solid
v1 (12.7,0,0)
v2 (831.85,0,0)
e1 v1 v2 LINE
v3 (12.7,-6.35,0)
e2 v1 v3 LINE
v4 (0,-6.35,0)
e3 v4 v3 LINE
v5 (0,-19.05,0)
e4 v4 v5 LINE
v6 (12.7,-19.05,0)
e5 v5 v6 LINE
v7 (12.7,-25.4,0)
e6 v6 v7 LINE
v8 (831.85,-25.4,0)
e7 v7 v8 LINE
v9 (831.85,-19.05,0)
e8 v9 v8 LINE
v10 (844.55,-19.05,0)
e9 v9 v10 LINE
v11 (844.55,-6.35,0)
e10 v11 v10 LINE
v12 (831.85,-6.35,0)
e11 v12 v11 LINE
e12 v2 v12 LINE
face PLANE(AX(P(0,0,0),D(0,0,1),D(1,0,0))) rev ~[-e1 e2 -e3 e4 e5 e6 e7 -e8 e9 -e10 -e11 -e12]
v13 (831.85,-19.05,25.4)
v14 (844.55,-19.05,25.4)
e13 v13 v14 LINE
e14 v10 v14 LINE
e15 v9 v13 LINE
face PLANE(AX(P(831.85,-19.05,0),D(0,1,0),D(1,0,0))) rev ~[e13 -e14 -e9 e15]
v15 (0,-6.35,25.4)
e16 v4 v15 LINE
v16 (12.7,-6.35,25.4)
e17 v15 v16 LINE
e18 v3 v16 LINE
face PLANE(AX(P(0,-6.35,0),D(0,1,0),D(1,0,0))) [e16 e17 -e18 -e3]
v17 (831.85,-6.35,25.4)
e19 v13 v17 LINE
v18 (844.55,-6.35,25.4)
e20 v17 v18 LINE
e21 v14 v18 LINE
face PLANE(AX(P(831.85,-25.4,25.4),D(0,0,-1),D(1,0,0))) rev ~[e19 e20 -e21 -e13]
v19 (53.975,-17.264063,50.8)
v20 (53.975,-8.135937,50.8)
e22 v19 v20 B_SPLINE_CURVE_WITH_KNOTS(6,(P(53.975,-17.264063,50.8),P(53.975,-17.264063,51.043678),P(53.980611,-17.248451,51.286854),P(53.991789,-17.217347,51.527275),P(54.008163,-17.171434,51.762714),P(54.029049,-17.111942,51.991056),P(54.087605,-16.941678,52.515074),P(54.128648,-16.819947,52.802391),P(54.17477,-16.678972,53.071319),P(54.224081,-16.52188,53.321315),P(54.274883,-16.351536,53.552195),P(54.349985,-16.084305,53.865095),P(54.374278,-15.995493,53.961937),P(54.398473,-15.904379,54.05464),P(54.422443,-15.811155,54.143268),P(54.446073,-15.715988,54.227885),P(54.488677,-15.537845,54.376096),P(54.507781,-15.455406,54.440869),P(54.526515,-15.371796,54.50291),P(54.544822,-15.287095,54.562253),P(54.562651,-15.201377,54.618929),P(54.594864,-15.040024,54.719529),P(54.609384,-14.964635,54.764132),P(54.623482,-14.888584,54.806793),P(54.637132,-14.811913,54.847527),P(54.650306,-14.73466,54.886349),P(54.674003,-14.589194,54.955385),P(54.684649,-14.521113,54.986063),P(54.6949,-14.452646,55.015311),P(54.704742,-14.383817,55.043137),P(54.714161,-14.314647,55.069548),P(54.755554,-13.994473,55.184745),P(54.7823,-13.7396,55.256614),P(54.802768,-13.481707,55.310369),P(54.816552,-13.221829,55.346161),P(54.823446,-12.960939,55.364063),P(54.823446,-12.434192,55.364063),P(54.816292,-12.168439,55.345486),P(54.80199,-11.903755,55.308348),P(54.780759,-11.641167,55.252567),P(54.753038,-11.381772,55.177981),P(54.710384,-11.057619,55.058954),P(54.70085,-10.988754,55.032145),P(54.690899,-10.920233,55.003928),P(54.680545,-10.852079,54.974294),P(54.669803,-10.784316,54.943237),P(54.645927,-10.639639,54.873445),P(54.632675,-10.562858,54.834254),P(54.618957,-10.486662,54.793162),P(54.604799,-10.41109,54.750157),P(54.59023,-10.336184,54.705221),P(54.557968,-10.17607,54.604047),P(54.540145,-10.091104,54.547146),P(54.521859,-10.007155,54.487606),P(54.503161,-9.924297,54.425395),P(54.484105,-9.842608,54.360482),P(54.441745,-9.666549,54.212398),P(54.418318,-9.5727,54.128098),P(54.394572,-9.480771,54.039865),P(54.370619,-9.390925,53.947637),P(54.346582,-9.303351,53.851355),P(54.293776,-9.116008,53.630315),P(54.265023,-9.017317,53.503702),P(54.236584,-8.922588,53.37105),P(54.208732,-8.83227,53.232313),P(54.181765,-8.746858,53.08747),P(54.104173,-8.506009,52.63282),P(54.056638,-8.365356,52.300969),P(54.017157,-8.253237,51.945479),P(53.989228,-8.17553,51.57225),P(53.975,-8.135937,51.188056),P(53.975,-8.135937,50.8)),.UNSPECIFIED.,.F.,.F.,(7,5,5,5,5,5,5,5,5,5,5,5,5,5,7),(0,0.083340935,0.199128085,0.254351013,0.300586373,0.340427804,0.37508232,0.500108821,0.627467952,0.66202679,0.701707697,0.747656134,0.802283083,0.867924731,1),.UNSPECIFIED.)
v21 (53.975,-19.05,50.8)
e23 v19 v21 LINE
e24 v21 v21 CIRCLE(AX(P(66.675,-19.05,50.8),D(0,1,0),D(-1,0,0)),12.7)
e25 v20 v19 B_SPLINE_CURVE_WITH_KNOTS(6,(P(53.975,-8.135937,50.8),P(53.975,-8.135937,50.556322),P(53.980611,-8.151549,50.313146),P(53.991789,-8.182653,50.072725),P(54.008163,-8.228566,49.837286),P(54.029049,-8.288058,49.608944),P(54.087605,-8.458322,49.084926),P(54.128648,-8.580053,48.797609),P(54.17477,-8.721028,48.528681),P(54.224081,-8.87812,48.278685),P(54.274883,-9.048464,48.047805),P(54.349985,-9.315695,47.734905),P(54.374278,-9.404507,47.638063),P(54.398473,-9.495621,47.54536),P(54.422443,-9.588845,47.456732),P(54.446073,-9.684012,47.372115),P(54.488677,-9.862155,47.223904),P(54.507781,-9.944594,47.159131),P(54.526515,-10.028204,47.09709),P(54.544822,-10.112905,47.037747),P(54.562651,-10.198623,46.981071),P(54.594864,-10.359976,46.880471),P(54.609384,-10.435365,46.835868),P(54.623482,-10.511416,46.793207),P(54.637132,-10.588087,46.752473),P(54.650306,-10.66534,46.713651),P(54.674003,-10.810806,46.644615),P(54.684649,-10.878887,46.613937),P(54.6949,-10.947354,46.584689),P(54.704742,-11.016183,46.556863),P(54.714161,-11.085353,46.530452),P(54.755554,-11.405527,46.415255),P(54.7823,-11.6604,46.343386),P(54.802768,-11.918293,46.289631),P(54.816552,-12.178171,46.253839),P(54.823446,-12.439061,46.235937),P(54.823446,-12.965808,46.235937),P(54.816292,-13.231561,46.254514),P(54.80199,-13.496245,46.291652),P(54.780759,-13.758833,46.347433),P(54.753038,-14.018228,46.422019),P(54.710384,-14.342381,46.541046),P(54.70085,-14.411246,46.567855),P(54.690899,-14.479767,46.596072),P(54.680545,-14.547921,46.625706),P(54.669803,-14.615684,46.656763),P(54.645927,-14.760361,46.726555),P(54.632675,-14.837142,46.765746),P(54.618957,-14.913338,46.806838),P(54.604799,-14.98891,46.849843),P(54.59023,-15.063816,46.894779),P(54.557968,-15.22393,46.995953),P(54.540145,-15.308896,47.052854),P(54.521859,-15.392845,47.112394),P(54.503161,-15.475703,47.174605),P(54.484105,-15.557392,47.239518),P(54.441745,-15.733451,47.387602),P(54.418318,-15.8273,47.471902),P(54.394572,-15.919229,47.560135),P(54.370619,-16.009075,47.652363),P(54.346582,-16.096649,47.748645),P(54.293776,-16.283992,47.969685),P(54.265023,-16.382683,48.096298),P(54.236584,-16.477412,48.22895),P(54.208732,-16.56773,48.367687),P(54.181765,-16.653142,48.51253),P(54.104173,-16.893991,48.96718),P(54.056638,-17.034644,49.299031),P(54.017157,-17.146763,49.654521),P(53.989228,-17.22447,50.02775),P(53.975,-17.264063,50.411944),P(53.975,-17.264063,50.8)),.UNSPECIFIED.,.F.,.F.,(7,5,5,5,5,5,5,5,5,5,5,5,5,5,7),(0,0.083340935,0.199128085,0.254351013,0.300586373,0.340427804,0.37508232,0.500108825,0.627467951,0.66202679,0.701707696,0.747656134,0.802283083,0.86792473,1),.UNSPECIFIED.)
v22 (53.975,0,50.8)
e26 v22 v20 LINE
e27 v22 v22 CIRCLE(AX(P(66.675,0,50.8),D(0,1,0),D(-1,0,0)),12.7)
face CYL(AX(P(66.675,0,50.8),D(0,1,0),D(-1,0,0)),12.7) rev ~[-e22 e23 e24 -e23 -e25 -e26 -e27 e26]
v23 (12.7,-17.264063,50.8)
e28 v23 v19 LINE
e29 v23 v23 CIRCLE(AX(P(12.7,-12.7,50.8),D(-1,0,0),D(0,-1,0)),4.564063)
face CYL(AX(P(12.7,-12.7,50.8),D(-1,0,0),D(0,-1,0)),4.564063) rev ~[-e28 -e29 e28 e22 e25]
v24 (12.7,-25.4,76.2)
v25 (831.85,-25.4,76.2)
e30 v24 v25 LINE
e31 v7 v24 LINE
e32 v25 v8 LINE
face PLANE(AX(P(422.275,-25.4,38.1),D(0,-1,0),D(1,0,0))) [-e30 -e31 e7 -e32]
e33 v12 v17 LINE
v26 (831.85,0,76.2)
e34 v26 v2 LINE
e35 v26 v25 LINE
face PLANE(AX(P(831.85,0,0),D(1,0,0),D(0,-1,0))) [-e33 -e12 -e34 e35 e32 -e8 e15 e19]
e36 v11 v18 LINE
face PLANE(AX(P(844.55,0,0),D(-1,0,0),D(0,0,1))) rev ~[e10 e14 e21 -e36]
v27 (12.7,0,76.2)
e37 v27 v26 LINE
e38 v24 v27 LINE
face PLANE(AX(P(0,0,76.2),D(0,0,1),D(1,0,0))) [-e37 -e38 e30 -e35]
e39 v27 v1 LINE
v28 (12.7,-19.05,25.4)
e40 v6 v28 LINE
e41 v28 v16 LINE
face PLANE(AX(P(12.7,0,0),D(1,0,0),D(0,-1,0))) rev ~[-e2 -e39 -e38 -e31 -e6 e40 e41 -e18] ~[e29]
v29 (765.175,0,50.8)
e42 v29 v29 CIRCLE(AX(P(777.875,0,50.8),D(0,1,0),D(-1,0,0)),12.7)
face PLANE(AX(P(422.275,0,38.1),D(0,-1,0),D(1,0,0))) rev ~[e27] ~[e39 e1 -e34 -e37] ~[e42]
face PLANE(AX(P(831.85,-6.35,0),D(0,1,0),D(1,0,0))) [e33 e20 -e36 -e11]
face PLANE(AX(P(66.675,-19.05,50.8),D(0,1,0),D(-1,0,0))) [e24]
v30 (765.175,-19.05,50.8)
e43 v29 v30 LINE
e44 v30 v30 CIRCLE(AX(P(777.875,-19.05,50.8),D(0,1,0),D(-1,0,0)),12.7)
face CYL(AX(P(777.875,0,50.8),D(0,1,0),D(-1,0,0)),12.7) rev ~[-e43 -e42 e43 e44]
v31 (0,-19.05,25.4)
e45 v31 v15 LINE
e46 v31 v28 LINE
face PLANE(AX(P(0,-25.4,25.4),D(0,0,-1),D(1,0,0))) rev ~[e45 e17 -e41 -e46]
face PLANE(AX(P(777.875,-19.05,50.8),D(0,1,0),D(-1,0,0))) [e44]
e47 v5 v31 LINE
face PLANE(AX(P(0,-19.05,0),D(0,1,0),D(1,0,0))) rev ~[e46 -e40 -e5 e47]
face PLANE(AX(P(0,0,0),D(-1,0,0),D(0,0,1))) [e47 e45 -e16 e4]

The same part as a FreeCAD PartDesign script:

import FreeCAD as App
import Part
import Sketcher

V = App.Vector
Q = App.Units.Quantity


def add_polygon(sketch, points):
    """Adds a closed chain of lines whose ends are joined by coincident constraints."""
    first, n = sketch.GeometryCount, len(points)
    for a, b in zip(points, points[1:] + points[:1]):
        sketch.addGeometry(Part.LineSegment(App.Vector(*a, 0), App.Vector(*b, 0)), False)
    for i in range(n):
        sketch.addConstraint(Sketcher.Constraint("Coincident", first + i, 2, first + (i + 1) % n, 1))

doc = App.newDocument("Part")
body = doc.addObject("PartDesign::Body", "Body")

# Sketch on XZ plane
sketch1 = body.newObject("Sketcher::SketchObject", "Sketch")
sketch1.AttachmentSupport = (doc.getObject("XZ_Plane"), [""])
sketch1.MapMode = "FlatFace"
add_polygon(sketch1, [(0, 76), (0, 0), (845, 0), (845, 76)])  # lines 0-3
sketch1.addConstraint(Sketcher.Constraint("Vertical", 0))
sketch1.addConstraint(Sketcher.Constraint("Horizontal", 1))
sketch1.addConstraint(Sketcher.Constraint("Vertical", 2))
sketch1.addConstraint(Sketcher.Constraint("Horizontal", 3))
sketch1.addConstraint(Sketcher.Constraint("Coincident", 0, 2, -1, 1))
sketch1.addConstraint(Sketcher.Constraint("DistanceY", 0, 2, 0, 1, Q("3 in")))
sketch1.addConstraint(Sketcher.Constraint("DistanceX", 1, 1, 1, 2, Q("33.25 in")))
pad1 = body.newObject("PartDesign::Pad", "Pad")
pad1.Profile = sketch1
pad1.Length = Q("1 in")

# Sketch on XZ plane
sketch2 = body.newObject("Sketcher::SketchObject", "Sketch001")
sketch2.AttachmentSupport = (doc.getObject("XZ_Plane"), [""])
sketch2.MapMode = "FlatFace"
sketch2.AttachmentOffset = App.Placement(V(0, 0, 1 * 25.4), App.Rotation())
add_polygon(sketch2, [(0, 76), (0, 25), (13, 25), (13, 76)])  # lines 0-3
add_polygon(sketch2, [(832, 76), (832, 25), (845, 25), (845, 76)])  # lines 4-7
sketch2.addConstraint(Sketcher.Constraint("Vertical", 0))
sketch2.addConstraint(Sketcher.Constraint("Horizontal", 1))
sketch2.addConstraint(Sketcher.Constraint("Vertical", 2))
sketch2.addConstraint(Sketcher.Constraint("Horizontal", 3))
sketch2.addConstraint(Sketcher.Constraint("Vertical", 4))
sketch2.addConstraint(Sketcher.Constraint("Horizontal", 5))
sketch2.addConstraint(Sketcher.Constraint("Vertical", 6))
sketch2.addConstraint(Sketcher.Constraint("Horizontal", 7))
sketch2.addConstraint(Sketcher.Constraint("PointOnObject", 0, 2, -2))
sketch2.addConstraint(Sketcher.Constraint("Horizontal", 1, 2, 4, 2))
sketch2.addConstraint(Sketcher.Constraint("Horizontal", 3, 2, 6, 2))
sketch2.addConstraint(Sketcher.Constraint("Equal", 3, 5))
sketch2.addConstraint(Sketcher.Constraint("DistanceY", 0, 2, 0, 1, Q("2 in")))
sketch2.addConstraint(Sketcher.Constraint("DistanceX", 1, 1, 1, 2, Q("0.5 in")))
sketch2.addConstraint(Sketcher.Constraint("DistanceY", -1, 1, 0, 2, Q("1 in")))
sketch2.addConstraint(Sketcher.Constraint("DistanceX", -1, 1, 4, 2, Q("32.75 in")))
pocket1 = body.newObject("PartDesign::Pocket", "Pocket")
pocket1.Profile = sketch2
pocket1.Type = "ThroughAll"

# Sketch on XY plane
sketch3 = body.newObject("Sketcher::SketchObject", "Sketch002")
sketch3.AttachmentSupport = (doc.getObject("XY_Plane"), [""])
sketch3.MapMode = "FlatFace"
add_polygon(sketch3, [(832, -25), (832, -19), (845, -19), (845, -25)])  # lines 0-3
add_polygon(sketch3, [(832, -6), (832, 0), (845, 0), (845, -6)])  # lines 4-7
add_polygon(sketch3, [(0, -25), (0, -19), (13, -19), (13, -25)])  # lines 8-11
add_polygon(sketch3, [(0, -6), (0, 0), (13, 0), (13, -6)])  # lines 12-15
sketch3.addConstraint(Sketcher.Constraint("Vertical", 0))
sketch3.addConstraint(Sketcher.Constraint("Horizontal", 1))
sketch3.addConstraint(Sketcher.Constraint("Vertical", 2))
sketch3.addConstraint(Sketcher.Constraint("Horizontal", 3))
sketch3.addConstraint(Sketcher.Constraint("Vertical", 4))
sketch3.addConstraint(Sketcher.Constraint("Horizontal", 5))
sketch3.addConstraint(Sketcher.Constraint("Vertical", 6))
sketch3.addConstraint(Sketcher.Constraint("Horizontal", 7))
sketch3.addConstraint(Sketcher.Constraint("Vertical", 8))
sketch3.addConstraint(Sketcher.Constraint("Horizontal", 9))
sketch3.addConstraint(Sketcher.Constraint("Vertical", 10))
sketch3.addConstraint(Sketcher.Constraint("Horizontal", 11))
sketch3.addConstraint(Sketcher.Constraint("Vertical", 12))
sketch3.addConstraint(Sketcher.Constraint("Horizontal", 13))
sketch3.addConstraint(Sketcher.Constraint("Vertical", 14))
sketch3.addConstraint(Sketcher.Constraint("Horizontal", 15))
sketch3.addConstraint(Sketcher.Constraint("Coincident", 12, 2, -1, 1))
sketch3.addConstraint(Sketcher.Constraint("PointOnObject", 4, 2, -1))
sketch3.addConstraint(Sketcher.Constraint("PointOnObject", 8, 2, -2))
sketch3.addConstraint(Sketcher.Constraint("Horizontal", 1, 2, 8, 2))
sketch3.addConstraint(Sketcher.Constraint("Horizontal", 3, 2, 10, 2))
sketch3.addConstraint(Sketcher.Constraint("Horizontal", 7, 2, 14, 2))
sketch3.addConstraint(Sketcher.Constraint("Vertical", 3, 2, 4, 2))
sketch3.addConstraint(Sketcher.Constraint("Vertical", 2, 2, 5, 2))
sketch3.addConstraint(Sketcher.Constraint("Vertical", 10, 2, 13, 2))
sketch3.addConstraint(Sketcher.Constraint("Equal", 7, 9))
sketch3.addConstraint(Sketcher.Constraint("Equal", 2, 4))
sketch3.addConstraint(Sketcher.Constraint("DistanceX", 1, 1, 1, 2, Q("0.5 in")))
sketch3.addConstraint(Sketcher.Constraint("DistanceY", 2, 2, -1, 1, Q("1 in")))
sketch3.addConstraint(Sketcher.Constraint("DistanceY", 0, 1, 0, 2, Q("0.25 in")))
sketch3.addConstraint(Sketcher.Constraint("DistanceX", -1, 1, 0, 2, Q("32.75 in")))
pocket2 = body.newObject("PartDesign::Pocket", "Pocket001")
pocket2.Profile = sketch3
pocket2.Type = "ThroughAll"
pocket2.Reversed = True

# Sketch on YZ plane
sketch4 = body.newObject("Sketcher::SketchObject", "Sketch003")
sketch4.AttachmentSupport = (doc.getObject("YZ_Plane"), [""])
sketch4.MapMode = "FlatFace"
sketch4.AttachmentOffset = App.Placement(V(0, 0, 0.5 * 25.4), App.Rotation())
sketch4.addGeometry(Part.Circle(V(-12.7, 50.8, 0), V(0, 0, 1), 4.6), False)
sketch4.addConstraint(Sketcher.Constraint("Diameter", 0, Q("0.359375 in")))
sketch4.addConstraint(Sketcher.Constraint("DistanceY", -1, 1, 0, 3, Q("2 in")))
sketch4.addConstraint(Sketcher.Constraint("DistanceX", 0, 3, -1, 1, Q("0.5 in")))
pocket3 = body.newObject("PartDesign::Pocket", "Pocket002")
pocket3.Profile = sketch4
pocket3.Length = Q("2 in")
pocket3.Reversed = True

# Sketch on XZ plane
sketch5 = body.newObject("Sketcher::SketchObject", "Sketch004")
sketch5.AttachmentSupport = (doc.getObject("XZ_Plane"), [""])
sketch5.MapMode = "FlatFace"
sketch5.addGeometry(Part.Circle(V(67, 51, 0), V(0, 0, 1), 13), False)
sketch5.addGeometry(Part.Circle(V(778, 51, 0), V(0, 0, 1), 13), False)
sketch5.addConstraint(Sketcher.Constraint("Equal", 0, 1))
sketch5.addConstraint(Sketcher.Constraint("Horizontal", 0, 3, 1, 3))
sketch5.addConstraint(Sketcher.Constraint("Diameter", 0, Q("1 in")))
sketch5.addConstraint(Sketcher.Constraint("DistanceY", -1, 1, 0, 3, Q("2 in")))
sketch5.addConstraint(Sketcher.Constraint("DistanceX", 0, 3, 1, 3, Q("28 in")))
sketch5.addConstraint(Sketcher.Constraint("DistanceX", -1, 1, 0, 3, Q("2.625 in")))
pocket4 = body.newObject("PartDesign::Pocket", "Pocket003")
pocket4.Profile = sketch5
pocket4.Length = Q("0.75 in")
pocket4.Reversed = True

doc.recompute()
